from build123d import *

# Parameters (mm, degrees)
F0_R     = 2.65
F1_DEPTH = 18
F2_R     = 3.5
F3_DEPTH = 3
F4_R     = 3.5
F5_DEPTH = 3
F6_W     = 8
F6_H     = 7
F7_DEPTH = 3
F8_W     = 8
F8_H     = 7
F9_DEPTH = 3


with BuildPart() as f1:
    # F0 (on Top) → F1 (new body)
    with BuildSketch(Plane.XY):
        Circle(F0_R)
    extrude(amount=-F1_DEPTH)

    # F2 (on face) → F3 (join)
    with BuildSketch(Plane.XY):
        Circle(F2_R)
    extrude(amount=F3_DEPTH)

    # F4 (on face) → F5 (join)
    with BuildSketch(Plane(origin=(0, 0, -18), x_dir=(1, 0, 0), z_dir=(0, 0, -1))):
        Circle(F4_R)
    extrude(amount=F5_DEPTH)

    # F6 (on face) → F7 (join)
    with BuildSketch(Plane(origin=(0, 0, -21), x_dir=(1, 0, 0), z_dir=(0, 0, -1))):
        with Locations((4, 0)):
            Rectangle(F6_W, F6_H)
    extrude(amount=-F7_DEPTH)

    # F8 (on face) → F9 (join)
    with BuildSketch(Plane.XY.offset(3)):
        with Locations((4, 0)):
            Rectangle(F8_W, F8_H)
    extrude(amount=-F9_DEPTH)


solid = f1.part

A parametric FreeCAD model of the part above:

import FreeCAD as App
import Part
import Sketcher
from FreeCAD import Vector
Q = App.Units.Quantity

doc = App.newDocument("Part")
params = doc.addObject("Spreadsheet::Sheet", "Params")
for row, (alias, value) in enumerate([
    ("sketch1_diameter", "5.3 mm"),
    ("pad1_length", "18 mm"),
    ("sketch2_diameter", "7 mm"),
    ("pad2_length", "3 mm"),
    ("sketch3_diameter", "7 mm"),
    ("pad3_length", "3 mm"),
    ("sketch4_width", "8 mm"),
    ("sketch4_height", "7 mm"),
    ("pad4_length", "3 mm"),
    ("sketch5_width", "8 mm"),
    ("sketch5_height", "7 mm"),
    ("pad5_length", "3 mm"),
], start=1):
    params.set(f"A{row}", alias)
    params.set(f"B{row}", "=" + value)
    params.setAlias(f"B{row}", alias)

body = doc.addObject("PartDesign::Body", "Body")

sketch1 = body.newObject("Sketcher::SketchObject", "Sketch")
sketch1.AttachmentSupport = (doc.getObject("XY_Plane"), [""])
sketch1.MapMode = "FlatFace"
sketch1.addGeometry(Part.Circle(Vector(0, 0, 0), Vector(0, 0, 1), 2.65), False)
sketch1.addConstraint([
    Sketcher.Constraint("Coincident", 0, 3, -1, 1),
    Sketcher.Constraint("Diameter", 0, Q("5.3 mm")),
])
sketch1.setExpression("Constraints[1]", "Params.sketch1_diameter")
pad1 = body.newObject("PartDesign::Pad", "Pad")
pad1.Profile = sketch1
pad1.setExpression("Length", "Params.pad1_length")
pad1.Reversed = True

sketch2 = body.newObject("Sketcher::SketchObject", "Sketch001")
sketch2.AttachmentSupport = (doc.getObject("XY_Plane"), [""])
sketch2.MapMode = "FlatFace"
sketch2.addGeometry(Part.Circle(Vector(0, 0, 0), Vector(0, 0, 1), 3.5), False)
sketch2.addConstraint([
    Sketcher.Constraint("Coincident", 0, 3, -1, 1),
    Sketcher.Constraint("Diameter", 0, Q("7 mm")),
])
sketch2.setExpression("Constraints[1]", "Params.sketch2_diameter")
pad2 = body.newObject("PartDesign::Pad", "Pad001")
pad2.Profile = sketch2
pad2.setExpression("Length", "Params.pad2_length")

sketch3 = body.newObject("Sketcher::SketchObject", "Sketch002")
sketch3.AttachmentSupport = (doc.getObject("XY_Plane"), [""])
sketch3.MapMode = "FlatFace"
sketch3.AttachmentOffset = App.Placement(Vector(0, 0, -18), App.Rotation())
sketch3.addGeometry(Part.Circle(Vector(0, 0, 0), Vector(0, 0, 1), 3.5), False)
sketch3.addConstraint([
    Sketcher.Constraint("Coincident", 0, 3, -1, 1),
    Sketcher.Constraint("Diameter", 0, Q("7 mm")),
])
sketch3.setExpression("Constraints[1]", "Params.sketch3_diameter")
pad3 = body.newObject("PartDesign::Pad", "Pad002")
pad3.Profile = sketch3
pad3.setExpression("Length", "Params.pad3_length")
pad3.Reversed = True

sketch4 = body.newObject("Sketcher::SketchObject", "Sketch003")
sketch4.AttachmentSupport = (doc.getObject("XY_Plane"), [""])
sketch4.MapMode = "FlatFace"
sketch4.AttachmentOffset = App.Placement(Vector(0, 0, -21), App.Rotation())
sketch4.addGeometry([
    Part.LineSegment(Vector(0, -3.5, 0), Vector(0, 3.5, 0)),
    Part.LineSegment(Vector(0, 3.5, 0), Vector(8, 3.5, 0)),
    Part.LineSegment(Vector(8, 3.5, 0), Vector(8, -3.5, 0)),
    Part.LineSegment(Vector(8, -3.5, 0), Vector(0, -3.5, 0)),
], False)
sketch4.addConstraint([
    Sketcher.Constraint("Coincident", 0, 2, 1, 1),
    Sketcher.Constraint("Coincident", 1, 2, 2, 1),
    Sketcher.Constraint("Coincident", 2, 2, 3, 1),
    Sketcher.Constraint("Coincident", 3, 2, 0, 1),
    Sketcher.Constraint("Vertical", 0),
    Sketcher.Constraint("Horizontal", 1),
    Sketcher.Constraint("Vertical", 2),
    Sketcher.Constraint("Horizontal", 3),
    Sketcher.Constraint("Symmetric", 0, 2, 3, 2, -1, 1),
    Sketcher.Constraint("DistanceX", 1, 1, 1, 2, Q("8 mm")),
    Sketcher.Constraint("DistanceY", 0, 1, 0, 2, Q("7 mm")),
])
sketch4.setExpression("Constraints[9]", "Params.sketch4_width")
sketch4.setExpression("Constraints[10]", "Params.sketch4_height")
pad4 = body.newObject("PartDesign::Pad", "Pad003")
pad4.Profile = sketch4
pad4.setExpression("Length", "Params.pad4_length")

sketch5 = body.newObject("Sketcher::SketchObject", "Sketch004")
sketch5.AttachmentSupport = (doc.getObject("XY_Plane"), [""])
sketch5.MapMode = "FlatFace"
sketch5.AttachmentOffset = App.Placement(Vector(0, 0, 3), App.Rotation())
sketch5.addGeometry([
    Part.LineSegment(Vector(0, 3.5, 0), Vector(0, -3.5, 0)),
    Part.LineSegment(Vector(0, -3.5, 0), Vector(8, -3.5, 0)),
    Part.LineSegment(Vector(8, -3.5, 0), Vector(8, 3.5, 0)),
    Part.LineSegment(Vector(8, 3.5, 0), Vector(0, 3.5, 0)),
], False)
sketch5.addConstraint([
    Sketcher.Constraint("Coincident", 0, 2, 1, 1),
    Sketcher.Constraint("Coincident", 1, 2, 2, 1),
    Sketcher.Constraint("Coincident", 2, 2, 3, 1),
    Sketcher.Constraint("Coincident", 3, 2, 0, 1),
    Sketcher.Constraint("Vertical", 0),
    Sketcher.Constraint("Horizontal", 1),
    Sketcher.Constraint("Vertical", 2),
    Sketcher.Constraint("Horizontal", 3),
    Sketcher.Constraint("Symmetric", 0, 2, 3, 2, -1, 1),
    Sketcher.Constraint("DistanceX", 1, 1, 1, 2, Q("8 mm")),
    Sketcher.Constraint("DistanceY", 0, 2, 0, 1, Q("7 mm")),
])
sketch5.setExpression("Constraints[9]", "Params.sketch5_width")
sketch5.setExpression("Constraints[10]", "Params.sketch5_height")
pad5 = body.newObject("PartDesign::Pad", "Pad004")
pad5.Profile = sketch5
pad5.setExpression("Length", "Params.pad5_length")
pad5.Reversed = True

doc.recompute()
